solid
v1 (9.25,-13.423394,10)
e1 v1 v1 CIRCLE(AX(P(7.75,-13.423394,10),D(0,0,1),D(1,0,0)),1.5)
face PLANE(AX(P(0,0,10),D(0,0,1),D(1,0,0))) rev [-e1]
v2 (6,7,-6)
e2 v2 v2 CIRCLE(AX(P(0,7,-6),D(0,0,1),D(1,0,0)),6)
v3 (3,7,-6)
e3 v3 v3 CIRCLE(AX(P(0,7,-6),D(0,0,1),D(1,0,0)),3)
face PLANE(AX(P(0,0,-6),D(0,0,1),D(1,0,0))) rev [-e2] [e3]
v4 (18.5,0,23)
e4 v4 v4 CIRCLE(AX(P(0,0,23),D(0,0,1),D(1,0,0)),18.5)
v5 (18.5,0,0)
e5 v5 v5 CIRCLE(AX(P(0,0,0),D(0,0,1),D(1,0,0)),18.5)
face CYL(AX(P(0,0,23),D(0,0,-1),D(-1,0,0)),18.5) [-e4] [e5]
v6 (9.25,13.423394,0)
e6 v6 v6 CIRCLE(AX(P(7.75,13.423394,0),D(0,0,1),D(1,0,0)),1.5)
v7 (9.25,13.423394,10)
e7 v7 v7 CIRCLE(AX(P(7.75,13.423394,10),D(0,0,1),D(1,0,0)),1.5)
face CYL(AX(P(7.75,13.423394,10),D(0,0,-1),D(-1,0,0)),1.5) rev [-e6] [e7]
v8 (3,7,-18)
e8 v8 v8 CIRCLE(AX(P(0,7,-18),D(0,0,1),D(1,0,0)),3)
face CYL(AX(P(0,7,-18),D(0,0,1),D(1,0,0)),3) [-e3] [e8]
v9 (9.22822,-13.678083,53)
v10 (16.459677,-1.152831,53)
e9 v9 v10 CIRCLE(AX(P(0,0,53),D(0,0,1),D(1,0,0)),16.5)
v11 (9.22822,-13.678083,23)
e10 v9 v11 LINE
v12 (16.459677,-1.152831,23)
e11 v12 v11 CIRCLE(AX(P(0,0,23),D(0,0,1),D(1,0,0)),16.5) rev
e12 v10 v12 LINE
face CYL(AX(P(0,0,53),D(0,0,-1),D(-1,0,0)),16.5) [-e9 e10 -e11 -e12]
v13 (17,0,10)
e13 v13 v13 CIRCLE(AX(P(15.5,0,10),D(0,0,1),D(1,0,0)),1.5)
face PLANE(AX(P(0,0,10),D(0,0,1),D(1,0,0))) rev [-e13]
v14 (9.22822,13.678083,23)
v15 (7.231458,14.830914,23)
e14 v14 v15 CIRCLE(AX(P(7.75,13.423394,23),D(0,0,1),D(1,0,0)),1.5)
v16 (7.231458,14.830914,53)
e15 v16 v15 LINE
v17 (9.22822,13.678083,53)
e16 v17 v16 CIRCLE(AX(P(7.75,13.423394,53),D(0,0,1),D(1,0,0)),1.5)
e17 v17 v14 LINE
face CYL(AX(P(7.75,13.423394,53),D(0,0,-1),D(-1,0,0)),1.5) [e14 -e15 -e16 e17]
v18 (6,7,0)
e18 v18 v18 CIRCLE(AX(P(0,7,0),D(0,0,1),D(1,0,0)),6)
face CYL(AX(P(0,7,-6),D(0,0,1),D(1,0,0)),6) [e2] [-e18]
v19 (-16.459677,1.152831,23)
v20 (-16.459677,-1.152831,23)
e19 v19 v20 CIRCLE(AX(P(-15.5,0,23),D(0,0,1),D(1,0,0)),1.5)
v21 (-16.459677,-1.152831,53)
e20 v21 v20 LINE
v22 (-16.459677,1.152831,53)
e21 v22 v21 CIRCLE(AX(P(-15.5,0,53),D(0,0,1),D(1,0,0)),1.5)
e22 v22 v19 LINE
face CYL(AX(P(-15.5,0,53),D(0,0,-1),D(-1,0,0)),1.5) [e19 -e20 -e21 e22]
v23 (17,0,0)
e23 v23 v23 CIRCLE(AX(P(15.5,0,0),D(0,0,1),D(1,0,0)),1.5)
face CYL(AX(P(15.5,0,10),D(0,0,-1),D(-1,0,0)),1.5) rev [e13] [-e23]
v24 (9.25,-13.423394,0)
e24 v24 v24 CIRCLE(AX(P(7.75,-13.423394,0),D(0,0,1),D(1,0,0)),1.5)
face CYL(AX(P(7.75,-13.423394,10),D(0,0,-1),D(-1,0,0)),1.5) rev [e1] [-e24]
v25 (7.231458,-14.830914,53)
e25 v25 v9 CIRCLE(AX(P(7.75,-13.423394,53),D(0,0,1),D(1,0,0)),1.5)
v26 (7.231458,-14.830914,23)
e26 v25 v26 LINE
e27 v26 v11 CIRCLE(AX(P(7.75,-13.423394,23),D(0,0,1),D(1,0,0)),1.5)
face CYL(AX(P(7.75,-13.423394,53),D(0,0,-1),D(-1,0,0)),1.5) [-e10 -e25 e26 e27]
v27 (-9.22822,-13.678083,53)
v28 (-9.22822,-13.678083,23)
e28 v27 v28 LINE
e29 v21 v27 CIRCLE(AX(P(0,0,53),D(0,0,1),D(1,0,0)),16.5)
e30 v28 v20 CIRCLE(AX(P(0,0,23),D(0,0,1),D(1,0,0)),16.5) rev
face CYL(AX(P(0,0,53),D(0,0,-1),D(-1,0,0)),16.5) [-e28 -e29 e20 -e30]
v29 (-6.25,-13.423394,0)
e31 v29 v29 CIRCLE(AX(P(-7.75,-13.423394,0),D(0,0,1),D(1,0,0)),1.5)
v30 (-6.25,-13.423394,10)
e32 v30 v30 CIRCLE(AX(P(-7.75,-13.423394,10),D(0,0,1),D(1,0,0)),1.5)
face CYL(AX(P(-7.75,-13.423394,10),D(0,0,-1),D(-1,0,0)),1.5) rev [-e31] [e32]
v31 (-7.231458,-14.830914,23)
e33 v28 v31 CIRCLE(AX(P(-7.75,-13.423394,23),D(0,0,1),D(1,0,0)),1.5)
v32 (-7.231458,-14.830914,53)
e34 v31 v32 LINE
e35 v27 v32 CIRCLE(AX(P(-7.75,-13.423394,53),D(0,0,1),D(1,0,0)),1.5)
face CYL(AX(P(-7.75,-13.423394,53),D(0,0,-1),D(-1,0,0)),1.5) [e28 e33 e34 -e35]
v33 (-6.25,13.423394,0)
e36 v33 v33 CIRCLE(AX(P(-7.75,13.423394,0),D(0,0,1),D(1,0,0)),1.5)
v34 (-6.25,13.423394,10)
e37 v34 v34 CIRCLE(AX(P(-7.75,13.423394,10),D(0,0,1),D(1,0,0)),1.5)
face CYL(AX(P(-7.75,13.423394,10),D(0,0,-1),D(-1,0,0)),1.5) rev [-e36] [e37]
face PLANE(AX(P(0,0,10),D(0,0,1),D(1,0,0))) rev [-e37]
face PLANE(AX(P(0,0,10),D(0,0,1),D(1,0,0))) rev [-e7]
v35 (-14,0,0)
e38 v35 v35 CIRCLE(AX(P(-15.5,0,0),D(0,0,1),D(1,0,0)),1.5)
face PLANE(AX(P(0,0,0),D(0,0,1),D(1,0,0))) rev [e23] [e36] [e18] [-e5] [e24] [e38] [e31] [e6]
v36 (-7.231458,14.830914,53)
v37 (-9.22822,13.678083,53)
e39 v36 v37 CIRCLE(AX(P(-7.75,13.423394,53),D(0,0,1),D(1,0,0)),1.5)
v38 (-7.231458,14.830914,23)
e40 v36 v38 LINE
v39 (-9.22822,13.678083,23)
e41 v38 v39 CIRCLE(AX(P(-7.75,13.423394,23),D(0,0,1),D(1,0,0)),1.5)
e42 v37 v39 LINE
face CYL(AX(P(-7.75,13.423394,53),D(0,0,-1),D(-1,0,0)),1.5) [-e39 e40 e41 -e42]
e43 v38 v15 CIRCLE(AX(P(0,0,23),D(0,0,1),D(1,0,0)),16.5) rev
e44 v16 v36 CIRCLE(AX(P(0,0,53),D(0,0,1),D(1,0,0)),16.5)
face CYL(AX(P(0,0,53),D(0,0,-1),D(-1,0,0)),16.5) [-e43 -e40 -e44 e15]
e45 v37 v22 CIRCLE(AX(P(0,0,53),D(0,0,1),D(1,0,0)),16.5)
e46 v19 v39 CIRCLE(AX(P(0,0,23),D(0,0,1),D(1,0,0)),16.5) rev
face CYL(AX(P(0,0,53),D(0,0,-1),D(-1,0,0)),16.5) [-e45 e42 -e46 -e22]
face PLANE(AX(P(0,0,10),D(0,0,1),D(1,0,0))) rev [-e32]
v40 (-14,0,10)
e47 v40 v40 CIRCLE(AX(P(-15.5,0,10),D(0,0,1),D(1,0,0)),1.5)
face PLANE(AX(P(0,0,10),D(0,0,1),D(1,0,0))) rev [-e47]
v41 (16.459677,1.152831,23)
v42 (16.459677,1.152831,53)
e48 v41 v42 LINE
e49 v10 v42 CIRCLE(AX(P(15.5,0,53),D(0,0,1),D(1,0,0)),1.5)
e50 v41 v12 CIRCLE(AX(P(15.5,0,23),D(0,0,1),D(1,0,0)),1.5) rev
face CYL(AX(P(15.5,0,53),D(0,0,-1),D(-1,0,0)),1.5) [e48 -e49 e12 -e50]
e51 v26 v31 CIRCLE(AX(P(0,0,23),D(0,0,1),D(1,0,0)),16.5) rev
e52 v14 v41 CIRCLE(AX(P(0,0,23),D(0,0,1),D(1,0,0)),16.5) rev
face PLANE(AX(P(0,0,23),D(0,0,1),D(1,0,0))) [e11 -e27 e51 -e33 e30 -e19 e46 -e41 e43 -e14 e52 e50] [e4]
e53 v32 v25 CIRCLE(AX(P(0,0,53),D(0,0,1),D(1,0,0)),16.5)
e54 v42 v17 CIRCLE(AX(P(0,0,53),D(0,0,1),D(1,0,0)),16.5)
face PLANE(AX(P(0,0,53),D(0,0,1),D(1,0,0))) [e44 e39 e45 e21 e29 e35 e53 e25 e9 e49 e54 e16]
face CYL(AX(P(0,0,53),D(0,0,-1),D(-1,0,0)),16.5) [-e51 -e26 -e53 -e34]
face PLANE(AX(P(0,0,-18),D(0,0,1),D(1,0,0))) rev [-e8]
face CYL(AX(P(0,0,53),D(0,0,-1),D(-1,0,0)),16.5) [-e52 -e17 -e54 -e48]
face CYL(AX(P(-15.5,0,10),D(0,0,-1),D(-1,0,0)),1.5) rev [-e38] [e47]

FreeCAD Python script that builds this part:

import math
import FreeCAD as App
import Part
import Sketcher

doc = App.newDocument("Part")
body = doc.addObject("PartDesign::Body", "Body")

# Sketch on XY plane
sketch1 = body.newObject("Sketcher::SketchObject", "Sketch")
sketch1.AttachmentSupport = (doc.getObject("XY_Plane"), [""])
sketch1.MapMode = "FlatFace"
sketch1.addGeometry([
    Part.Circle(App.Vector(0, 0, 0), App.Vector(0, 0, 1), 18.5),  # 0
    Part.Circle(App.Vector(-7.8, -13.4, 0), App.Vector(0, 0, 1), 1.5),  # 1
    Part.Circle(App.Vector(7.8, -13.4, 0), App.Vector(0, 0, 1), 1.5),  # 2
    Part.Circle(App.Vector(-15.5, 0, 0), App.Vector(0, 0, 1), 1.5),  # 3
    Part.Circle(App.Vector(-7.8, 13.4, 0), App.Vector(0, 0, 1), 1.5),  # 4
    Part.Circle(App.Vector(15.5, 0, 0), App.Vector(0, 0, 1), 1.5),  # 5
    Part.Circle(App.Vector(7.8, 13.4, 0), App.Vector(0, 0, 1), 1.5),  # 6
], False)
sketch1.addConstraint([
    Sketcher.Constraint("Coincident", 0, 3, -1, 1),
    Sketcher.Constraint("Equal", 1, 2),
    Sketcher.Constraint("Equal", 2, 3),
    Sketcher.Constraint("Equal", 3, 4),
    Sketcher.Constraint("Equal", 4, 5),
    Sketcher.Constraint("Equal", 5, 6),
    Sketcher.Constraint("Symmetric", 2, 3, 4, 3, -1, 1),
    Sketcher.Constraint("Symmetric", 3, 3, 5, 3, -1, 1),
    Sketcher.Constraint("Symmetric", 1, 3, 6, 3, -1, 1),
    Sketcher.Constraint("Symmetric", 1, 3, 2, 3, -2),
    Sketcher.Constraint("PointOnObject", 3, 3, -1),
    Sketcher.Constraint("Diameter", 0, 37.0),
    Sketcher.Constraint("Diameter", 1, 3.0),
    Sketcher.Constraint("DistanceX", 3, 3, 5, 3, 31.0),
    Sketcher.Constraint("DistanceX", 1, 3, 2, 3, 15.5),
    Sketcher.Constraint("DistanceY", 1, 3, -1, 1, 13.423394),
])
pad1 = body.newObject("PartDesign::Pad", "Pad")
pad1.Profile = sketch1
pad1.Length = 23

# Sketch on XY plane
sketch2 = body.newObject("Sketcher::SketchObject", "Sketch001")
sketch2.AttachmentSupport = (doc.getObject("XY_Plane"), [""])
sketch2.MapMode = "FlatFace"
sketch2.addGeometry([
    Part.Circle(App.Vector(0, 7, 0), App.Vector(0, 0, 1), 6),
    Part.Circle(App.Vector(0, 7, 0), App.Vector(0, 0, 1), 3),
], False)
sketch2.addConstraint([
    Sketcher.Constraint("Coincident", 1, 3, 0, 3),
    Sketcher.Constraint("PointOnObject", 0, 3, -2),
    Sketcher.Constraint("Diameter", 0, 12.0),
    Sketcher.Constraint("Diameter", 1, 6.0),
    Sketcher.Constraint("DistanceY", -1, 1, 0, 3, 7.0),
])
pad2 = body.newObject("PartDesign::Pad", "Pad001")
pad2.Profile = sketch2
pad2.Length = 6
pad2.Reversed = True

# Sketch on XY plane
sketch3 = body.newObject("Sketcher::SketchObject", "Sketch002")
sketch3.AttachmentSupport = (doc.getObject("XY_Plane"), [""])
sketch3.MapMode = "FlatFace"
sketch3.addGeometry(Part.Circle(App.Vector(0, 7, 0), App.Vector(0, 0, 1), 3), False)
sketch3.addConstraint([
    Sketcher.Constraint("PointOnObject", 0, 3, -2),
    Sketcher.Constraint("Diameter", 0, 6.0),
    Sketcher.Constraint("DistanceY", -1, 1, 0, 3, 7.0),
])
pad3 = body.newObject("PartDesign::Pad", "Pad002")
pad3.Profile = sketch3
pad3.Length = 18
pad3.Reversed = True

# Sketch on XY plane
sketch4 = body.newObject("Sketcher::SketchObject", "Sketch003")
sketch4.AttachmentSupport = (doc.getObject("XY_Plane"), [""])
sketch4.MapMode = "FlatFace"
sketch4.addGeometry([
    Part.ArcOfCircle(Part.Circle(App.Vector(0, 0, 0), App.Vector(0, 0, 1), 16.5), math.radians(64), math.radians(116)),  # 0
    Part.ArcOfCircle(Part.Circle(App.Vector(-7.8, 13.4, 0), App.Vector(0, 0, 1), 1.5), math.radians(70), math.radians(170)),  # 1
    Part.ArcOfCircle(Part.Circle(App.Vector(0, 0, 0), App.Vector(0, 0, 1), 16.5), math.radians(124), math.radians(176)),  # 2
    Part.ArcOfCircle(Part.Circle(App.Vector(-15.5, 0, 0), App.Vector(0, 0, 1), 1.5), math.radians(130), math.radians(230)),  # 3
    Part.ArcOfCircle(Part.Circle(App.Vector(0, 0, 0), App.Vector(0, 0, 1), 16.5), math.radians(-176), math.radians(-124)),  # 4
    Part.ArcOfCircle(Part.Circle(App.Vector(-7.8, -13.4, 0), App.Vector(0, 0, 1), 1.5), math.radians(-170), math.radians(-70)),  # 5
    Part.ArcOfCircle(Part.Circle(App.Vector(0, 0, 0), App.Vector(0, 0, 1), 16.5), math.radians(-116), math.radians(-64)),  # 6
    Part.ArcOfCircle(Part.Circle(App.Vector(7.8, -13.4, 0), App.Vector(0, 0, 1), 1.5), math.radians(-110), math.radians(-10)),  # 7
    Part.ArcOfCircle(Part.Circle(App.Vector(0, 0, 0), App.Vector(0, 0, 1), 16.5), math.radians(-56), math.radians(-4)),  # 8
    Part.ArcOfCircle(Part.Circle(App.Vector(15.5, 0, 0), App.Vector(0, 0, 1), 1.5), math.radians(-50), math.radians(50)),  # 9
    Part.ArcOfCircle(Part.Circle(App.Vector(0, 0, 0), App.Vector(0, 0, 1), 16.5), math.radians(4), math.radians(56)),  # 10
    Part.ArcOfCircle(Part.Circle(App.Vector(7.8, 13.4, 0), App.Vector(0, 0, 1), 1.5), math.radians(10), math.radians(110)),  # 11
], False)
sketch4.addConstraint([
    Sketcher.Constraint("Coincident", 0, 2, 1, 1),
    Sketcher.Constraint("Coincident", 1, 2, 2, 1),
    Sketcher.Constraint("Coincident", 2, 2, 3, 1),
    Sketcher.Constraint("Coincident", 3, 2, 4, 1),
    Sketcher.Constraint("Coincident", 4, 2, 5, 1),
    Sketcher.Constraint("Coincident", 5, 2, 6, 1),
    Sketcher.Constraint("Coincident", 6, 2, 7, 1),
    Sketcher.Constraint("Coincident", 7, 2, 8, 1),
    Sketcher.Constraint("Coincident", 8, 2, 9, 1),
    Sketcher.Constraint("Coincident", 9, 2, 10, 1),
    Sketcher.Constraint("Coincident", 10, 2, 11, 1),
    Sketcher.Constraint("Coincident", 11, 2, 0, 1),
    Sketcher.Constraint("Coincident", 0, 3, -1, 1),
    Sketcher.Constraint("Coincident", 2, 3, -1, 1),
    Sketcher.Constraint("Coincident", 4, 3, -1, 1),
    Sketcher.Constraint("Coincident", 6, 3, -1, 1),
    Sketcher.Constraint("Coincident", 8, 3, -1, 1),
    Sketcher.Constraint("Coincident", 10, 3, -1, 1),
    Sketcher.Constraint("Equal", 0, 2),
    Sketcher.Constraint("Equal", 1, 3),
    Sketcher.Constraint("Equal", 2, 4),
    Sketcher.Constraint("Equal", 3, 5),
    Sketcher.Constraint("Equal", 4, 6),
    Sketcher.Constraint("Equal", 5, 7),
    Sketcher.Constraint("Equal", 6, 8),
    Sketcher.Constraint("Equal", 7, 9),
    Sketcher.Constraint("Equal", 8, 10),
    Sketcher.Constraint("Equal", 9, 11),
    Sketcher.Constraint("Symmetric", 1, 3, 7, 3, -1, 1),
    Sketcher.Constraint("Symmetric", 3, 3, 9, 3, -1, 1),
    Sketcher.Constraint("Symmetric", 5, 3, 11, 3, -1, 1),
    Sketcher.Constraint("Symmetric", 5, 3, 7, 3, -2),
    Sketcher.Constraint("PointOnObject", 3, 3, -1),
    Sketcher.Constraint("Radius", 0, 16.5),
    Sketcher.Constraint("Radius", 1, 1.5),
    Sketcher.Constraint("DistanceX", 3, 3, -1, 1, 15.5),
    Sketcher.Constraint("DistanceX", 5, 3, 7, 3, 15.5),
    Sketcher.Constraint("DistanceX", 1, 2, -1, 1, 9.22822),
])
pad4 = body.newObject("PartDesign::Pad", "Pad003")
pad4.Profile = sketch4
pad4.Length = 53

# Sketch on XY plane
sketch5 = body.newObject("Sketcher::SketchObject", "Sketch004")
sketch5.AttachmentSupport = (doc.getObject("XY_Plane"), [""])
sketch5.MapMode = "FlatFace"
sketch5.addGeometry([
    Part.Circle(App.Vector(-15.5, 0, 0), App.Vector(0, 0, 1), 1.5),  # 0
    Part.Circle(App.Vector(-7.8, 13.4, 0), App.Vector(0, 0, 1), 1.5),  # 1
    Part.Circle(App.Vector(7.8, 13.4, 0), App.Vector(0, 0, 1), 1.5),  # 2
    Part.Circle(App.Vector(15.5, 0, 0), App.Vector(0, 0, 1), 1.5),  # 3
    Part.Circle(App.Vector(7.8, -13.4, 0), App.Vector(0, 0, 1), 1.5),  # 4
    Part.Circle(App.Vector(-7.8, -13.4, 0), App.Vector(0, 0, 1), 1.5),  # 5
], False)
sketch5.addConstraint([
    Sketcher.Constraint("Equal", 0, 1),
    Sketcher.Constraint("Equal", 1, 2),
    Sketcher.Constraint("Equal", 2, 3),
    Sketcher.Constraint("Equal", 3, 4),
    Sketcher.Constraint("Equal", 4, 5),
    Sketcher.Constraint("Symmetric", 0, 3, 3, 3, -1, 1),
    Sketcher.Constraint("Symmetric", 1, 3, 4, 3, -1, 1),
    Sketcher.Constraint("Symmetric", 2, 3, 5, 3, -1, 1),
    Sketcher.Constraint("Symmetric", 1, 3, 2, 3, -2),
    Sketcher.Constraint("PointOnObject", 0, 3, -1),
    Sketcher.Constraint("Diameter", 0, 3.0),
    Sketcher.Constraint("DistanceX", 0, 3, 3, 3, 31.0),
    Sketcher.Constraint("DistanceX", 1, 3, 2, 3, 15.5),
    Sketcher.Constraint("DistanceY", -1, 1, 1, 3, 13.423394),
])
pocket1 = body.newObject("PartDesign::Pocket", "Pocket")
pocket1.Profile = sketch5
pocket1.Length = 10
pocket1.Reversed = True

doc.recompute()
